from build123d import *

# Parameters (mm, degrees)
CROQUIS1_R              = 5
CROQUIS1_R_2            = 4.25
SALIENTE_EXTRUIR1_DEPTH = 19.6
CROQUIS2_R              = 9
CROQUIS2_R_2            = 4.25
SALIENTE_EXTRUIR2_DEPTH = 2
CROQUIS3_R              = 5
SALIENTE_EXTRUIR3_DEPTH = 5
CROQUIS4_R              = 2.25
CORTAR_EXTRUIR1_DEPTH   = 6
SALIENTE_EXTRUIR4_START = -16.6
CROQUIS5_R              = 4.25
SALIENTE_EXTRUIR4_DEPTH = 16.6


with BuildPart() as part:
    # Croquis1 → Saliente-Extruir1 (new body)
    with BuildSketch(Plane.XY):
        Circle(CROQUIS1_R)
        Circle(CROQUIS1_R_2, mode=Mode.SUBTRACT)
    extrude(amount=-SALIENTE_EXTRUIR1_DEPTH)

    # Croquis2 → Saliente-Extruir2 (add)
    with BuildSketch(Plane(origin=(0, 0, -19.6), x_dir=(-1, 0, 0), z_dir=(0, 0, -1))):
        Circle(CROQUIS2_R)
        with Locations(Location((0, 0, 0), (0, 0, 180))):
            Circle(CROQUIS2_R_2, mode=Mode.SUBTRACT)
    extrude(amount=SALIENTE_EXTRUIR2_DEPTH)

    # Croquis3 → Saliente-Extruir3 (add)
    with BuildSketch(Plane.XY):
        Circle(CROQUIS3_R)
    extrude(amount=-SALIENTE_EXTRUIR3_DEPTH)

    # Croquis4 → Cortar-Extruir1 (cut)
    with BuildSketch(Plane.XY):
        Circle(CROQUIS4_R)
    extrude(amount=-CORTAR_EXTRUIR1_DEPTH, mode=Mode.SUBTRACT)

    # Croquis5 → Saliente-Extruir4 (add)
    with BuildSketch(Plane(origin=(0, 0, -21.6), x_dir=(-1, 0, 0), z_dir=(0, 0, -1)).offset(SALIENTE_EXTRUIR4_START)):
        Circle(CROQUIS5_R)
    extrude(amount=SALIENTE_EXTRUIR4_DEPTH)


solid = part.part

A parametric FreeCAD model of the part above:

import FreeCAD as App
import Part
import Sketcher
Q = App.Units.Quantity

doc = App.newDocument("Part")
body = doc.addObject("PartDesign::Body", "Body")

# Sketch on XY plane
sketch1 = doc.addObject("Sketcher::SketchObject", "Sketch")
body.addObject(sketch1)
sketch1.AttachmentSupport = (doc.XY_Plane, [""])
sketch1.MapMode = "FlatFace"
sketch1.addGeometry([
    Part.Circle(App.Vector(0, 0, 0), App.Vector(0, 0, 1), 5),
    Part.Circle(App.Vector(0, 0, 0), App.Vector(0, 0, 1), 4.2),
], False)
sketch1.addConstraint([
    Sketcher.Constraint("Coincident", 0, 3, -1, 1),
    Sketcher.Constraint("Coincident", 1, 3, -1, 1),
    Sketcher.Constraint("Diameter", 0, Q("10 mm")),
    Sketcher.Constraint("Diameter", 1, Q("8.5 mm")),
])
pad1 = doc.addObject("PartDesign::Pad", "Pad")
body.addObject(pad1)
pad1.Profile = sketch1
pad1.Length = 19.6
pad1.Reversed = True

# Sketch on XY plane
sketch2 = doc.addObject("Sketcher::SketchObject", "Sketch001")
body.addObject(sketch2)
sketch2.AttachmentSupport = (doc.XY_Plane, [""])
sketch2.MapMode = "FlatFace"
sketch2.AttachmentOffset = App.Placement(App.Vector(0, 0, -19.6), App.Rotation())
sketch2.addGeometry([
    Part.Circle(App.Vector(0, 0, 0), App.Vector(0, 0, 1), 9),
    Part.Circle(App.Vector(0, 0, 0), App.Vector(0, 0, 1), 4.2),
], False)
sketch2.addConstraint([
    Sketcher.Constraint("Coincident", 0, 3, -1, 1),
    Sketcher.Constraint("Coincident", 1, 3, -1, 1),
    Sketcher.Constraint("Diameter", 0, Q("18 mm")),
    Sketcher.Constraint("Diameter", 1, Q("8.5 mm")),
])
pad2 = doc.addObject("PartDesign::Pad", "Pad001")
body.addObject(pad2)
pad2.Profile = sketch2
pad2.Length = 2
pad2.Reversed = True

# Sketch on XY plane
sketch3 = doc.addObject("Sketcher::SketchObject", "Sketch002")
body.addObject(sketch3)
sketch3.AttachmentSupport = (doc.XY_Plane, [""])
sketch3.MapMode = "FlatFace"
sketch3.addGeometry(Part.Circle(App.Vector(0, 0, 0), App.Vector(0, 0, 1), 5), False)
sketch3.addConstraint([
    Sketcher.Constraint("Coincident", 0, 3, -1, 1),
    Sketcher.Constraint("Diameter", 0, Q("10 mm")),
])
pad3 = doc.addObject("PartDesign::Pad", "Pad002")
body.addObject(pad3)
pad3.Profile = sketch3
pad3.Length = 5
pad3.Reversed = True

# Sketch on XY plane
sketch4 = doc.addObject("Sketcher::SketchObject", "Sketch003")
body.addObject(sketch4)
sketch4.AttachmentSupport = (doc.XY_Plane, [""])
sketch4.MapMode = "FlatFace"
sketch4.addGeometry(Part.Circle(App.Vector(0, 0, 0), App.Vector(0, 0, 1), 2.2), False)
sketch4.addConstraint([
    Sketcher.Constraint("Coincident", 0, 3, -1, 1),
    Sketcher.Constraint("Diameter", 0, Q("4.5 mm")),
])
pocket1 = doc.addObject("PartDesign::Pocket", "Pocket")
body.addObject(pocket1)
pocket1.Profile = sketch4
pocket1.Length = 6

# Sketch on XY plane
sketch5 = doc.addObject("Sketcher::SketchObject", "Sketch004")
body.addObject(sketch5)
sketch5.AttachmentSupport = (doc.XY_Plane, [""])
sketch5.MapMode = "FlatFace"
sketch5.AttachmentOffset = App.Placement(App.Vector(0, 0, -5), App.Rotation())
sketch5.addGeometry(Part.Circle(App.Vector(0, 0, 0), App.Vector(0, 0, 1), 4.2), False)
sketch5.addConstraint([
    Sketcher.Constraint("Coincident", 0, 3, -1, 1),
    Sketcher.Constraint("Diameter", 0, Q("8.5 mm")),
])
pad4 = doc.addObject("PartDesign::Pad", "Pad003")
body.addObject(pad4)
pad4.Profile = sketch5
pad4.Length = 16.6
pad4.Reversed = True

doc.recompute()
